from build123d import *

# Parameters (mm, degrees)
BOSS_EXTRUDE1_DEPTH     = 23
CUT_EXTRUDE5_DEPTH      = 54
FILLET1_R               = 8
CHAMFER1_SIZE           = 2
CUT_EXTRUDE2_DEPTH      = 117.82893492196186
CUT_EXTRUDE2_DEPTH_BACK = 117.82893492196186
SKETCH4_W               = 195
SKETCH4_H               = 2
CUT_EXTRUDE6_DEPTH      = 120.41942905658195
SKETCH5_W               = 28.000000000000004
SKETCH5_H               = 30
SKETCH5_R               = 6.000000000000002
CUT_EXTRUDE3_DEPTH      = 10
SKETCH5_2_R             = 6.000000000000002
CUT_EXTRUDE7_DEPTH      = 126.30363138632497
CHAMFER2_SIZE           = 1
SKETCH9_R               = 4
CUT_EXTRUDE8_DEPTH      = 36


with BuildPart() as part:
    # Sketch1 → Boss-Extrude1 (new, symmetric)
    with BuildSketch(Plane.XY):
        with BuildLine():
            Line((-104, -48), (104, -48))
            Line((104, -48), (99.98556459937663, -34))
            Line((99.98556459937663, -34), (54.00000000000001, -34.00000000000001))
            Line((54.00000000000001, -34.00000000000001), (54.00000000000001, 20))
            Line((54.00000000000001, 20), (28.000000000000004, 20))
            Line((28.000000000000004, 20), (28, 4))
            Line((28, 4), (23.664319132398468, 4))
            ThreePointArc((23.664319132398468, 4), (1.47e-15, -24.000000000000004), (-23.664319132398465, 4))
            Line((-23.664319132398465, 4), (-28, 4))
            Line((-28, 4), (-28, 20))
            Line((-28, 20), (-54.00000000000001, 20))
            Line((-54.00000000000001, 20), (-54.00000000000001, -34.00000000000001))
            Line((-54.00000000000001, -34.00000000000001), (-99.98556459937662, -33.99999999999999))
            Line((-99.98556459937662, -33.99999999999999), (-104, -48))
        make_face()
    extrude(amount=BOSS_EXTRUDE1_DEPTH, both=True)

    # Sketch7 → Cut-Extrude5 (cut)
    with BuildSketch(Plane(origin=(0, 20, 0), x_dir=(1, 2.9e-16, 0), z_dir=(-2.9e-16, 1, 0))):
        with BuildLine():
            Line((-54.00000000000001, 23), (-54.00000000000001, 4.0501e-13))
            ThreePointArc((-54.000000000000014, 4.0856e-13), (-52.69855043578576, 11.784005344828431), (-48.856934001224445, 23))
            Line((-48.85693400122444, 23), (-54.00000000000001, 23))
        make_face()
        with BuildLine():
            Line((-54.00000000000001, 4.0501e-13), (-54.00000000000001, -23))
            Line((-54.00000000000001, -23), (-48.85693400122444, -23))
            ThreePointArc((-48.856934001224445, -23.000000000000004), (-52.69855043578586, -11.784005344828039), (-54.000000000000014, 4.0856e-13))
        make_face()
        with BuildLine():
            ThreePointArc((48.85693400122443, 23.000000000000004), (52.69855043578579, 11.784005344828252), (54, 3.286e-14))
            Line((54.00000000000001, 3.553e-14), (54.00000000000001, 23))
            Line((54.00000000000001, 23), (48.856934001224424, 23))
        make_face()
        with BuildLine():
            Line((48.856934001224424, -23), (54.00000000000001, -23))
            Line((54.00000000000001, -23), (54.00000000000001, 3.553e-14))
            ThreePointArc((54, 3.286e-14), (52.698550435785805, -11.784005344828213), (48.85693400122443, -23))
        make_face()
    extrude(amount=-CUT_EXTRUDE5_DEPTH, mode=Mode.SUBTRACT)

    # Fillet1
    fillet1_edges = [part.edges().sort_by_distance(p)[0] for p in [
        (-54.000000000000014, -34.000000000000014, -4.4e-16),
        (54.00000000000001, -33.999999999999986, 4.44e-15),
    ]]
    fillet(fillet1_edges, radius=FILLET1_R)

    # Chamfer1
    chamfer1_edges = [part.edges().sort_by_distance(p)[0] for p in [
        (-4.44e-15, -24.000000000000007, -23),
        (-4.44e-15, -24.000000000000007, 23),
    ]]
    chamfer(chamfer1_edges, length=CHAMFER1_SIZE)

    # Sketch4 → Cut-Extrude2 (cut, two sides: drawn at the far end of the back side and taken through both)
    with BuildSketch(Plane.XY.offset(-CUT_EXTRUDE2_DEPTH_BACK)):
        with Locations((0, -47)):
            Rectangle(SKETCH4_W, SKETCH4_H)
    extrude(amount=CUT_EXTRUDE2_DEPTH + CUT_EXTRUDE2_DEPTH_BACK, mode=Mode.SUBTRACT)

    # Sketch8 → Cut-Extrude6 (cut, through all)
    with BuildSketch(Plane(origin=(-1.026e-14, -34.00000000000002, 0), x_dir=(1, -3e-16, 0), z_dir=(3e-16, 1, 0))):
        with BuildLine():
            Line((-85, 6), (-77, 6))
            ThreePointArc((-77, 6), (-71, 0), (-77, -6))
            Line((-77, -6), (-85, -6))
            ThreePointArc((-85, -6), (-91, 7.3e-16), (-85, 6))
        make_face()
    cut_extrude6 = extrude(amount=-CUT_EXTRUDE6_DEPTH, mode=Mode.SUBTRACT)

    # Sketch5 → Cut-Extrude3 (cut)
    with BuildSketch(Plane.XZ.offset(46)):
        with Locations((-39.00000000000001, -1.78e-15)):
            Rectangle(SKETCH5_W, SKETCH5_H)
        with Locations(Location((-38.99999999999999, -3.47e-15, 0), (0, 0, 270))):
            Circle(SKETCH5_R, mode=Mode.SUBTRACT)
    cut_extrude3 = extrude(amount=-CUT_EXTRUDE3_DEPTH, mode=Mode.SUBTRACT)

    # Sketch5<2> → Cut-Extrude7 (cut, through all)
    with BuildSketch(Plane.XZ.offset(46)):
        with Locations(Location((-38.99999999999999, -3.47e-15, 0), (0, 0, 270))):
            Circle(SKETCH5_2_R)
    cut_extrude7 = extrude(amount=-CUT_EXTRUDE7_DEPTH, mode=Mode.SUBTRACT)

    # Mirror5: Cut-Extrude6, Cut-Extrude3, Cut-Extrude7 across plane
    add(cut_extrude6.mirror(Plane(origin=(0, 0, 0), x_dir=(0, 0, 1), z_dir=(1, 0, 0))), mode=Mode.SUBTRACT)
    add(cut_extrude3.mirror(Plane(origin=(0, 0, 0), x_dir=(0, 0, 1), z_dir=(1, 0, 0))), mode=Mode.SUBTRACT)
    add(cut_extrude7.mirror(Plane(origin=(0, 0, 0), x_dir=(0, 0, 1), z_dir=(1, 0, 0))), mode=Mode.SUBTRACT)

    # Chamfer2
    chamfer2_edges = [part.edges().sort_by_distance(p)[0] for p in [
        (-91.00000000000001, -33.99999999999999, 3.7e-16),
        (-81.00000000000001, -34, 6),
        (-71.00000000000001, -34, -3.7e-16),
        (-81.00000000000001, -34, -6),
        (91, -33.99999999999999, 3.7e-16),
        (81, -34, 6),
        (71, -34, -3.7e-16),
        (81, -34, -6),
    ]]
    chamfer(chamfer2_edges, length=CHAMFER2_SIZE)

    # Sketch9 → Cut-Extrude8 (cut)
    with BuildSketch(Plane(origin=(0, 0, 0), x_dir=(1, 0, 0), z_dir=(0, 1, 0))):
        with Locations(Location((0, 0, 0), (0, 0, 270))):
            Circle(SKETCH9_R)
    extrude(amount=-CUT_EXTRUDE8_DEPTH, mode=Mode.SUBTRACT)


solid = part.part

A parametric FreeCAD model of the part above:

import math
import FreeCAD as App
import Part
import Sketcher
from FreeCAD import Vector
Q = App.Units.Quantity


def edges_at(feature, points):
    """Names of the edges that pass closest to the given points."""
    edges = feature.Shape.Edges
    near = lambda p: min(range(len(edges)), key=lambda i: edges[i].distToShape(Part.Vertex(*p))[0])
    return sorted({f"Edge{near(p) + 1}" for p in points})

doc = App.newDocument("Part")
body = doc.addObject("PartDesign::Body", "Body")

# Sketch on XY plane
sketch1 = doc.addObject("Sketcher::SketchObject", "Sketch")
body.addObject(sketch1)
sketch1.AttachmentSupport = (doc.XY_Plane, [""])
sketch1.MapMode = "FlatFace"
sketch1.addGeometry([
    Part.LineSegment(Vector(-104, -48, 0), Vector(104, -48, 0)),  # 0
    Part.LineSegment(Vector(104, -48, 0), Vector(100, -34, 0)),  # 1
    Part.LineSegment(Vector(100, -34, 0), Vector(54, -34, 0)),  # 2
    Part.LineSegment(Vector(54, -34, 0), Vector(54, 20, 0)),  # 3
    Part.LineSegment(Vector(54, 20, 0), Vector(28, 20, 0)),  # 4
    Part.LineSegment(Vector(28, 20, 0), Vector(28, 4, 0)),  # 5
    Part.LineSegment(Vector(28, 4, 0), Vector(23.7, 4, 0)),  # 6
    Part.ArcOfCircle(Part.Circle(Vector(0, 0, 0), Vector(0, 0, 1), 24), math.radians(170), math.radians(370)),  # 7
    Part.LineSegment(Vector(-23.7, 4, 0), Vector(-28, 4, 0)),  # 8
    Part.LineSegment(Vector(-28, 4, 0), Vector(-28, 20, 0)),  # 9
    Part.LineSegment(Vector(-28, 20, 0), Vector(-54, 20, 0)),  # 10
    Part.LineSegment(Vector(-54, 20, 0), Vector(-54, -34, 0)),  # 11
    Part.LineSegment(Vector(-54, -34, 0), Vector(-100, -34, 0)),  # 12
    Part.LineSegment(Vector(-100, -34, 0), Vector(-104, -48, 0)),  # 13
], False)
sketch1.addConstraint([
    Sketcher.Constraint("Coincident", 0, 2, 1, 1),
    Sketcher.Constraint("Coincident", 1, 2, 2, 1),
    Sketcher.Constraint("Coincident", 2, 2, 3, 1),
    Sketcher.Constraint("Coincident", 3, 2, 4, 1),
    Sketcher.Constraint("Coincident", 4, 2, 5, 1),
    Sketcher.Constraint("Coincident", 5, 2, 6, 1),
    Sketcher.Constraint("Coincident", 6, 2, 7, 2),
    Sketcher.Constraint("Coincident", 7, 1, 8, 1),
    Sketcher.Constraint("Coincident", 8, 2, 9, 1),
    Sketcher.Constraint("Coincident", 9, 2, 10, 1),
    Sketcher.Constraint("Coincident", 10, 2, 11, 1),
    Sketcher.Constraint("Coincident", 11, 2, 12, 1),
    Sketcher.Constraint("Coincident", 12, 2, 13, 1),
    Sketcher.Constraint("Coincident", 13, 2, 0, 1),
    Sketcher.Constraint("Horizontal", 0),
    Sketcher.Constraint("Horizontal", 2),
    Sketcher.Constraint("Vertical", 3),
    Sketcher.Constraint("Horizontal", 4),
    Sketcher.Constraint("Vertical", 5),
    Sketcher.Constraint("Horizontal", 6),
    Sketcher.Constraint("Horizontal", 8),
    Sketcher.Constraint("Vertical", 9),
    Sketcher.Constraint("Horizontal", 10),
    Sketcher.Constraint("Vertical", 11),
    Sketcher.Constraint("Horizontal", 12),
    Sketcher.Constraint("Coincident", 7, 3, -1, 1),
    Sketcher.Constraint("Symmetric", 5, 2, 8, 2, -2),
    Sketcher.Constraint("Symmetric", 3, 2, 10, 2, -2),
    Sketcher.Constraint("Symmetric", 1, 2, 12, 2, -2),
    Sketcher.Constraint("Equal", 1, 13),
    Sketcher.Constraint("Radius", 7, Q("24 mm")),
    Sketcher.Constraint("DistanceX", 0, 1, 0, 2, Q("208 mm")),
    Sketcher.Constraint("DistanceX", 4, 2, 4, 1, Q("26 mm")),
    Sketcher.Constraint("DistanceY", 3, 1, 3, 2, Q("54 mm")),
    Sketcher.Constraint("DistanceY", 5, 2, 5, 1, Q("16 mm")),
    Sketcher.Constraint("Angle", 1, Q("106 deg")),
    Sketcher.Constraint("DistanceY", 0, 2, -1, 1, Q("48 mm")),
    Sketcher.Constraint("DistanceY", 1, 2, -1, 1, Q("34 mm")),
    Sketcher.Constraint("DistanceX", -1, 1, 2, 2, Q("54 mm")),
])
pad1 = doc.addObject("PartDesign::Pad", "Pad")
body.addObject(pad1)
pad1.Profile = sketch1
pad1.Length = 46
pad1.Midplane = True

# Sketch on XZ plane
sketch2 = doc.addObject("Sketcher::SketchObject", "Sketch001")
body.addObject(sketch2)
sketch2.AttachmentSupport = (doc.XZ_Plane, [""])
sketch2.MapMode = "FlatFace"
sketch2.AttachmentOffset = App.Placement(Vector(0, 0, -20), App.Rotation())
sketch2.addGeometry([
    Part.LineSegment(Vector(-54, -23, 0), Vector(-54, 0, 0)),  # 0
    Part.ArcOfCircle(Part.Circle(Vector(0, 0, 0), Vector(0, 0, 1), 54), math.radians(180), math.radians(205)),  # 1
    Part.LineSegment(Vector(-49, -23, 0), Vector(-54, -23, 0)),  # 2
    Part.LineSegment(Vector(-54, 0, 0), Vector(-54, 23, 0)),  # 3
    Part.LineSegment(Vector(-54, 23, 0), Vector(-49, 23, 0)),  # 4
    Part.ArcOfCircle(Part.Circle(Vector(0, 0, 0), Vector(0, 0, 1), 54), math.radians(155), math.radians(180)),  # 5
    Part.ArcOfCircle(Part.Circle(Vector(0, 0, 0), Vector(0, 0, 1), 54), math.radians(-25), math.radians(0)),  # 6
    Part.LineSegment(Vector(54, 0, 0), Vector(54, -23, 0)),  # 7
    Part.LineSegment(Vector(54, -23, 0), Vector(49, -23, 0)),  # 8
    Part.LineSegment(Vector(49, 23, 0), Vector(54, 23, 0)),  # 9
    Part.LineSegment(Vector(54, 23, 0), Vector(54, 0, 0)),  # 10
    Part.ArcOfCircle(Part.Circle(Vector(0, 0, 0), Vector(0, 0, 1), 54), math.radians(0), math.radians(25)),  # 11
], False)
sketch2.addConstraint([
    Sketcher.Constraint("Tangent", 0, 2, 1, 1),
    Sketcher.Constraint("Coincident", 1, 2, 2, 1),
    Sketcher.Constraint("Coincident", 2, 2, 0, 1),
    Sketcher.Constraint("Coincident", 3, 2, 4, 1),
    Sketcher.Constraint("Coincident", 4, 2, 5, 1),
    Sketcher.Constraint("Tangent", 5, 2, 3, 1),
    Sketcher.Constraint("Tangent", 6, 2, 7, 1),
    Sketcher.Constraint("Coincident", 7, 2, 8, 1),
    Sketcher.Constraint("Coincident", 8, 2, 6, 1),
    Sketcher.Constraint("Coincident", 9, 2, 10, 1),
    Sketcher.Constraint("Tangent", 10, 2, 11, 1),
    Sketcher.Constraint("Coincident", 11, 2, 9, 1),
    Sketcher.Constraint("Vertical", 0),
    Sketcher.Constraint("Horizontal", 2),
    Sketcher.Constraint("Vertical", 3),
    Sketcher.Constraint("Horizontal", 4),
    Sketcher.Constraint("Vertical", 7),
    Sketcher.Constraint("Horizontal", 8),
    Sketcher.Constraint("Horizontal", 9),
    Sketcher.Constraint("Vertical", 10),
    Sketcher.Constraint("Coincident", 1, 3, -1, 1),
    Sketcher.Constraint("Coincident", 5, 3, -1, 1),
    Sketcher.Constraint("Coincident", 6, 3, -1, 1),
    Sketcher.Constraint("Coincident", 11, 3, -1, 1),
    Sketcher.Constraint("Equal", 1, 5),
    Sketcher.Constraint("Equal", 5, 6),
    Sketcher.Constraint("Equal", 6, 11),
    Sketcher.Constraint("Horizontal", 2, 2, 7, 2),
    Sketcher.Constraint("Horizontal", 4, 2, 9, 2),
    Sketcher.Constraint("Vertical", 1, 2, 4, 2),
    Sketcher.Constraint("Radius", 1, Q("54 mm")),
    Sketcher.Constraint("DistanceY", 0, 1, 0, 2, Q("23 mm")),
])
pocket1 = doc.addObject("PartDesign::Pocket", "Pocket")
body.addObject(pocket1)
pocket1.Profile = sketch2
pocket1.Length = 54
pocket1.Reversed = True
doc.recompute()

fillet = doc.addObject("PartDesign::Fillet", "Fillet")
body.addObject(fillet)
fillet.Base = (pocket1, edges_at(pocket1, [(-54, -34, 0), (54, -34, 0)]))
fillet.Radius = 8
doc.recompute()

chamfer = doc.addObject("PartDesign::Chamfer", "Chamfer")
body.addObject(chamfer)
chamfer.Base = (fillet, edges_at(fillet, [(0, -24, -23), (0, -24, 23)]))
chamfer.Size = 2

# Sketch on XY plane
sketch3 = doc.addObject("Sketcher::SketchObject", "Sketch002")
body.addObject(sketch3)
sketch3.AttachmentSupport = (doc.XY_Plane, [""])
sketch3.MapMode = "FlatFace"
sketch3.addGeometry([
    Part.LineSegment(Vector(-97.5, -46, 0), Vector(-97.5, -48, 0)),
    Part.LineSegment(Vector(-97.5, -48, 0), Vector(97.5, -48, 0)),
    Part.LineSegment(Vector(97.5, -48, 0), Vector(97.5, -46, 0)),
    Part.LineSegment(Vector(97.5, -46, 0), Vector(-97.5, -46, 0)),
], False)
sketch3.addConstraint([
    Sketcher.Constraint("Coincident", 0, 2, 1, 1),
    Sketcher.Constraint("Coincident", 1, 2, 2, 1),
    Sketcher.Constraint("Coincident", 2, 2, 3, 1),
    Sketcher.Constraint("Coincident", 3, 2, 0, 1),
    Sketcher.Constraint("Vertical", 0),
    Sketcher.Constraint("Horizontal", 1),
    Sketcher.Constraint("Vertical", 2),
    Sketcher.Constraint("Horizontal", 3),
    Sketcher.Constraint("DistanceX", 1, 1, 1, 2, Q("195 mm")),
    Sketcher.Constraint("DistanceY", 0, 2, 0, 1, Q("2 mm")),
    Sketcher.Constraint("DistanceY", 0, 2, -1, 1, Q("48 mm")),
    Sketcher.Constraint("DistanceX", 0, 2, -1, 1, Q("97.5 mm")),
])
pocket2 = doc.addObject("PartDesign::Pocket", "Pocket001")
body.addObject(pocket2)
pocket2.Profile = sketch3
pocket2.Type = "ThroughAll"
pocket2.Midplane = True

# Sketch on XZ plane
sketch4 = doc.addObject("Sketcher::SketchObject", "Sketch003")
body.addObject(sketch4)
sketch4.AttachmentSupport = (doc.XZ_Plane, [""])
sketch4.MapMode = "FlatFace"
sketch4.AttachmentOffset = App.Placement(Vector(0, 0, 34), App.Rotation())
sketch4.addGeometry([
    Part.LineSegment(Vector(-77, -6, 0), Vector(-85, -6, 0)),
    Part.ArcOfCircle(Part.Circle(Vector(-85, 0, 0), Vector(0, 0, 1), 6), math.radians(90), math.radians(270)),
    Part.LineSegment(Vector(-85, 6, 0), Vector(-77, 6, 0)),
    Part.ArcOfCircle(Part.Circle(Vector(-77, 0, 0), Vector(0, 0, 1), 6), math.radians(-90), math.radians(90)),
], False)
sketch4.addConstraint([
    Sketcher.Constraint("Tangent", 0, 2, 1, 2),
    Sketcher.Constraint("Tangent", 1, 1, 2, 1),
    Sketcher.Constraint("Tangent", 2, 2, 3, 2),
    Sketcher.Constraint("Tangent", 3, 1, 0, 1),
    Sketcher.Constraint("Horizontal", 0),
    Sketcher.Constraint("Horizontal", 2),
    Sketcher.Constraint("PointOnObject", 1, 3, -1),
    Sketcher.Constraint("Radius", 1, Q("6 mm")),
    Sketcher.Constraint("DistanceX", 0, 2, 0, 1, Q("8 mm")),
    Sketcher.Constraint("DistanceX", 1, 3, -1, 1, Q("85 mm")),
])
pocket3 = doc.addObject("PartDesign::Pocket", "Pocket002")
body.addObject(pocket3)
pocket3.Profile = sketch4
pocket3.Type = "ThroughAll"
pocket3.Reversed = True

# Sketch on XZ plane
sketch5 = doc.addObject("Sketcher::SketchObject", "Sketch004")
body.addObject(sketch5)
sketch5.AttachmentSupport = (doc.XZ_Plane, [""])
sketch5.MapMode = "FlatFace"
sketch5.AttachmentOffset = App.Placement(Vector(0, 0, 46), App.Rotation())
sketch5.addGeometry([
    Part.LineSegment(Vector(-53, 15, 0), Vector(-53, -15, 0)),  # 0
    Part.LineSegment(Vector(-53, -15, 0), Vector(-25, -15, 0)),  # 1
    Part.LineSegment(Vector(-25, -15, 0), Vector(-25, 15, 0)),  # 2
    Part.LineSegment(Vector(-25, 15, 0), Vector(-53, 15, 0)),  # 3
    Part.Circle(Vector(-39, 0, 0), Vector(0, 0, 1), 6),  # 4
], False)
sketch5.addConstraint([
    Sketcher.Constraint("Coincident", 0, 2, 1, 1),
    Sketcher.Constraint("Coincident", 1, 2, 2, 1),
    Sketcher.Constraint("Coincident", 2, 2, 3, 1),
    Sketcher.Constraint("Coincident", 3, 2, 0, 1),
    Sketcher.Constraint("Vertical", 0),
    Sketcher.Constraint("Horizontal", 1),
    Sketcher.Constraint("Vertical", 2),
    Sketcher.Constraint("Horizontal", 3),
    Sketcher.Constraint("PointOnObject", 4, 3, -1),
    Sketcher.Constraint("Diameter", 4, Q("12 mm")),
    Sketcher.Constraint("DistanceX", 1, 1, 1, 2, Q("28 mm")),
    Sketcher.Constraint("DistanceY", 0, 2, 0, 1, Q("30 mm")),
    Sketcher.Constraint("DistanceX", 4, 3, -1, 1, Q("39 mm")),
    Sketcher.Constraint("DistanceX", 0, 2, -1, 1, Q("53 mm")),
    Sketcher.Constraint("DistanceY", 0, 2, -1, 1, Q("15 mm")),
])
pocket4 = doc.addObject("PartDesign::Pocket", "Pocket003")
body.addObject(pocket4)
pocket4.Profile = sketch5
pocket4.Length = 10

# Sketch on XZ plane
sketch6 = doc.addObject("Sketcher::SketchObject", "Sketch005")
body.addObject(sketch6)
sketch6.AttachmentSupport = (doc.XZ_Plane, [""])
sketch6.MapMode = "FlatFace"
sketch6.AttachmentOffset = App.Placement(Vector(0, 0, 46), App.Rotation())
sketch6.addGeometry(Part.Circle(Vector(-39, 0, 0), Vector(0, 0, 1), 6), False)
sketch6.addConstraint([
    Sketcher.Constraint("PointOnObject", 0, 3, -1),
    Sketcher.Constraint("Diameter", 0, Q("12 mm")),
    Sketcher.Constraint("DistanceX", 0, 3, -1, 1, Q("39 mm")),
])
pocket5 = doc.addObject("PartDesign::Pocket", "Pocket004")
body.addObject(pocket5)
pocket5.Profile = sketch6
pocket5.Type = "ThroughAll"
doc.recompute()

mirrored = doc.addObject("PartDesign::Mirrored", "Mirrored")
body.addObject(mirrored)
mirrored.Originals = [pocket3, pocket4, pocket5]
mirrored.MirrorPlane = (doc.YZ_Plane, [""])
body.Tip = mirrored
doc.recompute()

chamfer2 = doc.addObject("PartDesign::Chamfer", "Chamfer001")
body.addObject(chamfer2)
chamfer2.Base = (mirrored, edges_at(mirrored, [
    (-91, -34, 0),
    (-81, -34, 6),
    (-71, -34, 0),
    (-81, -34, -6),
    (91, -34, 0),
    (81, -34, 6),
    (71, -34, 0),
    (81, -34, -6),
]))
chamfer2.Size = 1

# Sketch on XZ plane
sketch7 = doc.addObject("Sketcher::SketchObject", "Sketch006")
body.addObject(sketch7)
sketch7.AttachmentSupport = (doc.XZ_Plane, [""])
sketch7.MapMode = "FlatFace"
sketch7.addGeometry(Part.Circle(Vector(0, 0, 0), Vector(0, 0, 1), 4), False)
sketch7.addConstraint([
    Sketcher.Constraint("Coincident", 0, 3, -1, 1),
    Sketcher.Constraint("Diameter", 0, Q("8 mm")),
])
pocket6 = doc.addObject("PartDesign::Pocket", "Pocket005")
body.addObject(pocket6)
pocket6.Profile = sketch7
pocket6.Length = 36
pocket6.Reversed = True

doc.recompute()
